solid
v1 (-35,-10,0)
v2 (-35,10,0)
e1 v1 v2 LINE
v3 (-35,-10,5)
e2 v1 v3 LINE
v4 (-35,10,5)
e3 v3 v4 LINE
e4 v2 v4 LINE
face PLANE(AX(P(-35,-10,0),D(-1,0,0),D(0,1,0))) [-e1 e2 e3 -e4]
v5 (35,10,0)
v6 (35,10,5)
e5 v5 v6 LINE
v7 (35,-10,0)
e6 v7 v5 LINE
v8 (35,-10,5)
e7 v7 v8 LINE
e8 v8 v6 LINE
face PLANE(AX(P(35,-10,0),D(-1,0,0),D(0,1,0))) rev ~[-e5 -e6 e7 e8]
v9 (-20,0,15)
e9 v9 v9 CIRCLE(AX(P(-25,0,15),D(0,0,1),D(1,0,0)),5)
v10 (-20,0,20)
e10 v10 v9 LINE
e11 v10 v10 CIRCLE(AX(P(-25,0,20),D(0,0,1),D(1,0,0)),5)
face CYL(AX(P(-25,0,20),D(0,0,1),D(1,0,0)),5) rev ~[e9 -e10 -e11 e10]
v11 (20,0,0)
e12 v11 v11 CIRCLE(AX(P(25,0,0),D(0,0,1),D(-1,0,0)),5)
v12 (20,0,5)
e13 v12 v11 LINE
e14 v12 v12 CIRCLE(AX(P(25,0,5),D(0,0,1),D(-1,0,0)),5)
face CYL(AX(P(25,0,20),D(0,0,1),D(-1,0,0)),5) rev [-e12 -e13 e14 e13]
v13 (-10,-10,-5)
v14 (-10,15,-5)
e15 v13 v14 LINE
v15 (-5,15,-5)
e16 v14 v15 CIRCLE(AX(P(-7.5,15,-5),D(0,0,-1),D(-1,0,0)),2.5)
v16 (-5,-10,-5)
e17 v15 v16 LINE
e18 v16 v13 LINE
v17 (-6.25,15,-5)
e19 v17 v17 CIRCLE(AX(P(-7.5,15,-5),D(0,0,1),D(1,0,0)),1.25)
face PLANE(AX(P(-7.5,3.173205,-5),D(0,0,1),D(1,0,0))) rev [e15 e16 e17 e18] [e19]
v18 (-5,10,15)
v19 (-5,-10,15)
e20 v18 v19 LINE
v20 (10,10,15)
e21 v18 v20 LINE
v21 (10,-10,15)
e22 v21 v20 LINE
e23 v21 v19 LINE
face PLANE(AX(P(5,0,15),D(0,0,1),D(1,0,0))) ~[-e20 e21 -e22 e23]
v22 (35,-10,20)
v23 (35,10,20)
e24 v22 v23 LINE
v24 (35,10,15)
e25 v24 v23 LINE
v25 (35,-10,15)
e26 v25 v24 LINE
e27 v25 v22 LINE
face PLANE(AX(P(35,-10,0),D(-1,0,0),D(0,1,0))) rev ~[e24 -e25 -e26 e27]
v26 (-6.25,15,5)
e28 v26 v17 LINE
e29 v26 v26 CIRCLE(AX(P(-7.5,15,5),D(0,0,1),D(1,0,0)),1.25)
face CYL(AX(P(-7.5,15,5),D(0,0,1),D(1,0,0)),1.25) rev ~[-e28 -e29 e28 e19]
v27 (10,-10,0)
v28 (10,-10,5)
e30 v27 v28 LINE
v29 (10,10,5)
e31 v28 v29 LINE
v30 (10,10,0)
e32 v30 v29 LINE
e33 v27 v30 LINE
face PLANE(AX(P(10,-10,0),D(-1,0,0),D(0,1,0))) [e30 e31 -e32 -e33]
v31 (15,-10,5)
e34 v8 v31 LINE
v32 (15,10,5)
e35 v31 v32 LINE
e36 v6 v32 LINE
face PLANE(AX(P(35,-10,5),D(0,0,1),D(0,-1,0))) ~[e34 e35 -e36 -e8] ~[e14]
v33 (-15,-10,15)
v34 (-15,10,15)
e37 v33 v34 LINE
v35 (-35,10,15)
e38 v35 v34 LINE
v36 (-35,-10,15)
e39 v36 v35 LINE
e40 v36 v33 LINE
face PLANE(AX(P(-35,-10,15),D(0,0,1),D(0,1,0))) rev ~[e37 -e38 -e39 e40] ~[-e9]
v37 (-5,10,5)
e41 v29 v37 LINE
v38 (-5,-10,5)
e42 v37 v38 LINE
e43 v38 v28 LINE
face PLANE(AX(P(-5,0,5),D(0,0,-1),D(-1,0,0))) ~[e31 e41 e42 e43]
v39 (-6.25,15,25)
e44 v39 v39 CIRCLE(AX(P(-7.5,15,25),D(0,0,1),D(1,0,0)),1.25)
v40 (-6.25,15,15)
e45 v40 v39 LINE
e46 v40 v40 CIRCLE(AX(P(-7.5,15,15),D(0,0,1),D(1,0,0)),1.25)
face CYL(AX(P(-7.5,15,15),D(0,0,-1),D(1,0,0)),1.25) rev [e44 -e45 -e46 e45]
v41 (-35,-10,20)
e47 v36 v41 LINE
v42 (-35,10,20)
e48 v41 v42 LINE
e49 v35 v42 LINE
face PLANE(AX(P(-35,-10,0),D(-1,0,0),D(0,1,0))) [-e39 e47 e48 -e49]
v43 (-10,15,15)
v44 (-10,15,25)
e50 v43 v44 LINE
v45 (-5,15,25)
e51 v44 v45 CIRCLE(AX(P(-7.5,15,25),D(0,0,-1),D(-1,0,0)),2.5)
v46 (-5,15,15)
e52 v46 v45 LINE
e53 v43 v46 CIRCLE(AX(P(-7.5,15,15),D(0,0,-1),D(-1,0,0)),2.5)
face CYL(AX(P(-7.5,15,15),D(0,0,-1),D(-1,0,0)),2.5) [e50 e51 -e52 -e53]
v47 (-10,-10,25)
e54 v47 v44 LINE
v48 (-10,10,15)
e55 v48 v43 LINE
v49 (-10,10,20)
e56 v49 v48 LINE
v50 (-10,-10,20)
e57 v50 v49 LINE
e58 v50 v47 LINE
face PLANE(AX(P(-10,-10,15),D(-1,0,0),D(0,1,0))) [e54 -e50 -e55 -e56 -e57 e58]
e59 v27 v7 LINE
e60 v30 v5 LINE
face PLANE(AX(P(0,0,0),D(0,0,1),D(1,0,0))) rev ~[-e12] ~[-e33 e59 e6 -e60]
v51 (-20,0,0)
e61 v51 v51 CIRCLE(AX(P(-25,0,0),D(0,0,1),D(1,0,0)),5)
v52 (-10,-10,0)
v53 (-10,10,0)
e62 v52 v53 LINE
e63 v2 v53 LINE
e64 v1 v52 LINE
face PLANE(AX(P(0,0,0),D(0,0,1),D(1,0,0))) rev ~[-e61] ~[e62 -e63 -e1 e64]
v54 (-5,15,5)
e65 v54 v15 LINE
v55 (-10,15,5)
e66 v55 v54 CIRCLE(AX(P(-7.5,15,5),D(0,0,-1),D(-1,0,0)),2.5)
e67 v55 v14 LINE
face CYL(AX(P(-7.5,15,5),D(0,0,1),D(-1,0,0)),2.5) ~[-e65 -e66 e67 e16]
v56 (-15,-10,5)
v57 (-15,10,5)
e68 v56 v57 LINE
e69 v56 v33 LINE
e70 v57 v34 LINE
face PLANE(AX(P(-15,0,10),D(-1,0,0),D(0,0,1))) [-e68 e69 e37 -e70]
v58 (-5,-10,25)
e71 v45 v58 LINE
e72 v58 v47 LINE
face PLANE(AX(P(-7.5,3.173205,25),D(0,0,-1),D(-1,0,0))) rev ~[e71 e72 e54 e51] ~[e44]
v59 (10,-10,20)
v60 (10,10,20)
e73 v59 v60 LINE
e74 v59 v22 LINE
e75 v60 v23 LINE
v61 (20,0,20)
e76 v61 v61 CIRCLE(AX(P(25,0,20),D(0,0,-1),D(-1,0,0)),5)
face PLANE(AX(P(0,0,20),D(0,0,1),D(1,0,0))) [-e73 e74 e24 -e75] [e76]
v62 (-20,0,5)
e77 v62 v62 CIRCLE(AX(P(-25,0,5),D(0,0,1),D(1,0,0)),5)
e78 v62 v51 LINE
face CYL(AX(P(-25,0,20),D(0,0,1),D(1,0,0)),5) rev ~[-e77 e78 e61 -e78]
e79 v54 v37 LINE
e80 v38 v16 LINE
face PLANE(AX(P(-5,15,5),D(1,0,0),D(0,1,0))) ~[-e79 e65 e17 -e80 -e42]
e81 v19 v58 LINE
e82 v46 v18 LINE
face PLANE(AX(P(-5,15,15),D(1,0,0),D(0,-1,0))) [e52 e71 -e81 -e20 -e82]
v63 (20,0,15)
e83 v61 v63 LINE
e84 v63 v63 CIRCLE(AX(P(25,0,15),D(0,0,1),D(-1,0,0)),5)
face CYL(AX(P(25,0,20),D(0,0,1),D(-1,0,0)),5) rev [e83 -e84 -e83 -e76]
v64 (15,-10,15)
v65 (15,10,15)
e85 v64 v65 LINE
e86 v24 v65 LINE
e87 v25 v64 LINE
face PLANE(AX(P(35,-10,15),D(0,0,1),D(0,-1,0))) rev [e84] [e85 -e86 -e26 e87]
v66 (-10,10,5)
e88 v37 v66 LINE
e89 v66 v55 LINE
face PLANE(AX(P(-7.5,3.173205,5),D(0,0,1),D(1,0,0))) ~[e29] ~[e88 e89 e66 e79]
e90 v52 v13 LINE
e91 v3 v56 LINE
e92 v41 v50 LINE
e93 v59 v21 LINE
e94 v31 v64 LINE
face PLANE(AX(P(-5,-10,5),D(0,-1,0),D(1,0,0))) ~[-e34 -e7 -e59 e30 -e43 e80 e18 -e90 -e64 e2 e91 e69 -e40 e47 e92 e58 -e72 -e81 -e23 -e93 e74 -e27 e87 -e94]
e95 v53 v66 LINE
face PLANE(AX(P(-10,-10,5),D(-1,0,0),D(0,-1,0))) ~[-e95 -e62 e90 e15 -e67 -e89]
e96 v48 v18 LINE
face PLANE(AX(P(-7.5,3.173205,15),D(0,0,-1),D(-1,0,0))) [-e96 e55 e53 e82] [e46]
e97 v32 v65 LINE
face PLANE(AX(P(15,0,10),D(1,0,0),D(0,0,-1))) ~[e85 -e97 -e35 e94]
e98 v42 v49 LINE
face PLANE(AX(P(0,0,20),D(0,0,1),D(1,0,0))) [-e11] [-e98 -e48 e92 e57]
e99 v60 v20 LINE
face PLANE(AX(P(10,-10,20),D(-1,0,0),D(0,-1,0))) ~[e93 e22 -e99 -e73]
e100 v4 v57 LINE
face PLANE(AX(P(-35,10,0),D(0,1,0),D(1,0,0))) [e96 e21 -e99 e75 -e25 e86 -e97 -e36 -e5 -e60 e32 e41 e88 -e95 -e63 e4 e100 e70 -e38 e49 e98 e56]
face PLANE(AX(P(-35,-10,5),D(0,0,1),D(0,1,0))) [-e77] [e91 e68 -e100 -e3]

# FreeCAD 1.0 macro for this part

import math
import FreeCAD as App
import Part
import Sketcher
Q = App.Units.Quantity

doc = App.newDocument("Part")
body = doc.addObject("PartDesign::Body", "Body")

# Sketch on XY plane
sketch1 = doc.addObject("Sketcher::SketchObject", "Sketch")
body.addObject(sketch1)
sketch1.AttachmentSupport = (doc.XY_Plane, [""])
sketch1.MapMode = "FlatFace"
sketch1.addGeometry([
    Part.LineSegment(App.Vector(-35, 10, 0), App.Vector(-35, -10, 0)),
    Part.LineSegment(App.Vector(-35, -10, 0), App.Vector(35, -10, 0)),
    Part.LineSegment(App.Vector(35, -10, 0), App.Vector(35, 10, 0)),
    Part.LineSegment(App.Vector(35, 10, 0), App.Vector(-35, 10, 0)),
], False)
sketch1.addConstraint([
    Sketcher.Constraint("Coincident", 0, 2, 1, 1),
    Sketcher.Constraint("Coincident", 1, 2, 2, 1),
    Sketcher.Constraint("Coincident", 2, 2, 3, 1),
    Sketcher.Constraint("Coincident", 3, 2, 0, 1),
    Sketcher.Constraint("Vertical", 0),
    Sketcher.Constraint("Horizontal", 1),
    Sketcher.Constraint("Vertical", 2),
    Sketcher.Constraint("Horizontal", 3),
    Sketcher.Constraint("Symmetric", 0, 2, 2, 2, -1, 1),
    Sketcher.Constraint("DistanceX", 1, 1, 1, 2, Q("70 mm")),
    Sketcher.Constraint("DistanceY", 0, 2, 0, 1, Q("20 mm")),
])
pad1 = doc.addObject("PartDesign::Pad", "Pad")
body.addObject(pad1)
pad1.Profile = sketch1
pad1.Length = 20

# Sketch on YZ plane
sketch2 = doc.addObject("Sketcher::SketchObject", "Sketch001")
body.addObject(sketch2)
sketch2.AttachmentSupport = (doc.YZ_Plane, [""])
sketch2.MapMode = "FlatFace"
sketch2.AttachmentOffset = App.Placement(App.Vector(0, 0, -35), App.Rotation())
sketch2.addGeometry([
    Part.LineSegment(App.Vector(10, 5, 0), App.Vector(-10, 5, 0)),
    Part.LineSegment(App.Vector(-10, 5, 0), App.Vector(-10, 15, 0)),
    Part.LineSegment(App.Vector(-10, 15, 0), App.Vector(10, 15, 0)),
    Part.LineSegment(App.Vector(10, 15, 0), App.Vector(10, 5, 0)),
], False)
sketch2.addConstraint([
    Sketcher.Constraint("Coincident", 0, 2, 1, 1),
    Sketcher.Constraint("Coincident", 1, 2, 2, 1),
    Sketcher.Constraint("Coincident", 2, 2, 3, 1),
    Sketcher.Constraint("Coincident", 3, 2, 0, 1),
    Sketcher.Constraint("Horizontal", 0),
    Sketcher.Constraint("Vertical", 1),
    Sketcher.Constraint("Horizontal", 2),
    Sketcher.Constraint("Vertical", 3),
    Sketcher.Constraint("DistanceX", 0, 2, 0, 1, Q("20 mm")),
    Sketcher.Constraint("DistanceY", 1, 1, 1, 2, Q("10 mm")),
    Sketcher.Constraint("DistanceX", 0, 2, -1, 1, Q("10 mm")),
    Sketcher.Constraint("DistanceY", -1, 1, 0, 2, Q("5 mm")),
])
pocket1 = doc.addObject("PartDesign::Pocket", "Pocket")
body.addObject(pocket1)
pocket1.Profile = sketch2
pocket1.Length = 20
pocket1.Reversed = True

# Sketch on XY plane
sketch3 = doc.addObject("Sketcher::SketchObject", "Sketch002")
body.addObject(sketch3)
sketch3.AttachmentSupport = (doc.XY_Plane, [""])
sketch3.MapMode = "FlatFace"
sketch3.AttachmentOffset = App.Placement(App.Vector(0, 0, 20), App.Rotation())
sketch3.addGeometry(Part.Circle(App.Vector(-25, 0, 0), App.Vector(0, 0, 1), 5), False)
sketch3.addConstraint([
    Sketcher.Constraint("PointOnObject", 0, 3, -1),
    Sketcher.Constraint("Diameter", 0, Q("10 mm")),
    Sketcher.Constraint("DistanceX", 0, 3, -1, 1, Q("25 mm")),
])
pocket2 = doc.addObject("PartDesign::Pocket", "Pocket001")
body.addObject(pocket2)
pocket2.Profile = sketch3
pocket2.Length = 60

# Sketch on XY plane
sketch4 = doc.addObject("Sketcher::SketchObject", "Sketch003")
body.addObject(sketch4)
sketch4.AttachmentSupport = (doc.XY_Plane, [""])
sketch4.MapMode = "FlatFace"
sketch4.AttachmentOffset = App.Placement(App.Vector(0, 0, 20), App.Rotation())
sketch4.addGeometry([
    Part.LineSegment(App.Vector(-10, 10, 0), App.Vector(-10, -10, 0)),
    Part.LineSegment(App.Vector(-10, -10, 0), App.Vector(0, -10, 0)),
    Part.LineSegment(App.Vector(0, -10, 0), App.Vector(0, 10, 0)),
    Part.LineSegment(App.Vector(0, 10, 0), App.Vector(-10, 10, 0)),
], False)
sketch4.addConstraint([
    Sketcher.Constraint("Coincident", 0, 2, 1, 1),
    Sketcher.Constraint("Coincident", 1, 2, 2, 1),
    Sketcher.Constraint("Coincident", 2, 2, 3, 1),
    Sketcher.Constraint("Coincident", 3, 2, 0, 1),
    Sketcher.Constraint("Vertical", 0),
    Sketcher.Constraint("Horizontal", 1),
    Sketcher.Constraint("Vertical", 2),
    Sketcher.Constraint("Horizontal", 3),
    Sketcher.Constraint("Symmetric", 1, 2, 2, 2, -1, 1),
    Sketcher.Constraint("DistanceX", 1, 1, 1, 2, Q("10 mm")),
    Sketcher.Constraint("DistanceY", 0, 2, 0, 1, Q("20 mm")),
])
pocket3 = doc.addObject("PartDesign::Pocket", "Pocket002")
body.addObject(pocket3)
pocket3.Profile = sketch4
pocket3.Length = 5
doc.recompute()

datumplane = doc.addObject("PartDesign::Plane", "DatumPlane")
body.addObject(datumplane)
datumplane.AttachmentSupport = (doc.XY_Plane, [""])
datumplane.MapMode = "FlatFace"
datumplane.AttachmentOffset = App.Placement(App.Vector(0, 0, 10), App.Rotation())
mirrored = doc.addObject("PartDesign::Mirrored", "Mirrored")
body.addObject(mirrored)
mirrored.Originals = [pocket3]
mirrored.MirrorPlane = (datumplane, [""])
body.Tip = mirrored
doc.recompute()

mirrored2 = doc.addObject("PartDesign::Mirrored", "Mirrored001")
body.addObject(mirrored2)
mirrored2.Originals = [pocket1, pocket2, pocket3]
mirrored2.MirrorPlane = (doc.YZ_Plane, [""])
body.Tip = mirrored2

# Sketch on XY plane
sketch5 = doc.addObject("Sketcher::SketchObject", "Sketch004")
body.addObject(sketch5)
sketch5.AttachmentSupport = (doc.XY_Plane, [""])
sketch5.MapMode = "FlatFace"
sketch5.addGeometry([
    Part.LineSegment(App.Vector(10, 10, 0), App.Vector(10, -10, 0)),
    Part.LineSegment(App.Vector(10, -10, 0), App.Vector(0, -10, 0)),
    Part.LineSegment(App.Vector(0, -10, 0), App.Vector(0, 10, 0)),
    Part.LineSegment(App.Vector(0, 10, 0), App.Vector(10, 10, 0)),
], False)
sketch5.addConstraint([
    Sketcher.Constraint("Coincident", 0, 2, 1, 1),
    Sketcher.Constraint("Coincident", 1, 2, 2, 1),
    Sketcher.Constraint("Coincident", 2, 2, 3, 1),
    Sketcher.Constraint("Coincident", 3, 2, 0, 1),
    Sketcher.Constraint("Vertical", 0),
    Sketcher.Constraint("Horizontal", 1),
    Sketcher.Constraint("Vertical", 2),
    Sketcher.Constraint("Horizontal", 3),
    Sketcher.Constraint("Symmetric", 1, 2, 2, 2, -1, 1),
    Sketcher.Constraint("DistanceX", 1, 2, 1, 1, Q("10 mm")),
    Sketcher.Constraint("DistanceY", 0, 2, 0, 1, Q("20 mm")),
])
pocket4 = doc.addObject("PartDesign::Pocket", "Pocket003")
body.addObject(pocket4)
pocket4.Profile = sketch5
pocket4.Length = 5
pocket4.Reversed = True

# Sketch on XY plane
sketch6 = doc.addObject("Sketcher::SketchObject", "Sketch005")
body.addObject(sketch6)
sketch6.AttachmentSupport = (doc.XY_Plane, [""])
sketch6.MapMode = "FlatFace"
sketch6.AttachmentOffset = App.Placement(App.Vector(0, 0, 15), App.Rotation())
sketch6.addGeometry([
    Part.LineSegment(App.Vector(-10, 15, 0), App.Vector(-10, -10, 0)),  # 0
    Part.LineSegment(App.Vector(-10, -10, 0), App.Vector(-5, -10, 0)),  # 1
    Part.LineSegment(App.Vector(-5, -10, 0), App.Vector(-5, 15, 0)),  # 2
    Part.ArcOfCircle(Part.Circle(App.Vector(-7.5, 15, 0), App.Vector(0, 0, 1), 2.5), math.radians(0), math.radians(180)),  # 3
    Part.Circle(App.Vector(-7.5, 15, 0), App.Vector(0, 0, 1), 1.2),  # 4
], False)
sketch6.addConstraint([
    Sketcher.Constraint("Coincident", 0, 2, 1, 1),
    Sketcher.Constraint("Coincident", 1, 2, 2, 1),
    Sketcher.Constraint("Tangent", 2, 2, 3, 1),
    Sketcher.Constraint("Tangent", 3, 2, 0, 1),
    Sketcher.Constraint("Vertical", 0),
    Sketcher.Constraint("Horizontal", 1),
    Sketcher.Constraint("Vertical", 2),
    Sketcher.Constraint("Coincident", 4, 3, 3, 3),
    Sketcher.Constraint("Diameter", 4, Q("2.5 mm")),
    Sketcher.Constraint("Radius", 3, Q("2.5 mm")),
    Sketcher.Constraint("DistanceY", 0, 2, 0, 1, Q("25 mm")),
    Sketcher.Constraint("DistanceY", -1, 1, 3, 3, Q("15 mm")),
    Sketcher.Constraint("DistanceX", 0, 2, -1, 1, Q("10 mm")),
])
pad2 = doc.addObject("PartDesign::Pad", "Pad001")
body.addObject(pad2)
pad2.Profile = sketch6
pad2.Length = 10
doc.recompute()

datumplane2 = doc.addObject("PartDesign::Plane", "DatumPlane001")
body.addObject(datumplane2)
datumplane2.AttachmentSupport = (doc.XY_Plane, [""])
datumplane2.MapMode = "FlatFace"
datumplane2.AttachmentOffset = App.Placement(App.Vector(0, 0, 10), App.Rotation())
mirrored3 = doc.addObject("PartDesign::Mirrored", "Mirrored002")
body.addObject(mirrored3)
mirrored3.Originals = [pad2]
mirrored3.MirrorPlane = (datumplane2, [""])
body.Tip = mirrored3

doc.recompute()
